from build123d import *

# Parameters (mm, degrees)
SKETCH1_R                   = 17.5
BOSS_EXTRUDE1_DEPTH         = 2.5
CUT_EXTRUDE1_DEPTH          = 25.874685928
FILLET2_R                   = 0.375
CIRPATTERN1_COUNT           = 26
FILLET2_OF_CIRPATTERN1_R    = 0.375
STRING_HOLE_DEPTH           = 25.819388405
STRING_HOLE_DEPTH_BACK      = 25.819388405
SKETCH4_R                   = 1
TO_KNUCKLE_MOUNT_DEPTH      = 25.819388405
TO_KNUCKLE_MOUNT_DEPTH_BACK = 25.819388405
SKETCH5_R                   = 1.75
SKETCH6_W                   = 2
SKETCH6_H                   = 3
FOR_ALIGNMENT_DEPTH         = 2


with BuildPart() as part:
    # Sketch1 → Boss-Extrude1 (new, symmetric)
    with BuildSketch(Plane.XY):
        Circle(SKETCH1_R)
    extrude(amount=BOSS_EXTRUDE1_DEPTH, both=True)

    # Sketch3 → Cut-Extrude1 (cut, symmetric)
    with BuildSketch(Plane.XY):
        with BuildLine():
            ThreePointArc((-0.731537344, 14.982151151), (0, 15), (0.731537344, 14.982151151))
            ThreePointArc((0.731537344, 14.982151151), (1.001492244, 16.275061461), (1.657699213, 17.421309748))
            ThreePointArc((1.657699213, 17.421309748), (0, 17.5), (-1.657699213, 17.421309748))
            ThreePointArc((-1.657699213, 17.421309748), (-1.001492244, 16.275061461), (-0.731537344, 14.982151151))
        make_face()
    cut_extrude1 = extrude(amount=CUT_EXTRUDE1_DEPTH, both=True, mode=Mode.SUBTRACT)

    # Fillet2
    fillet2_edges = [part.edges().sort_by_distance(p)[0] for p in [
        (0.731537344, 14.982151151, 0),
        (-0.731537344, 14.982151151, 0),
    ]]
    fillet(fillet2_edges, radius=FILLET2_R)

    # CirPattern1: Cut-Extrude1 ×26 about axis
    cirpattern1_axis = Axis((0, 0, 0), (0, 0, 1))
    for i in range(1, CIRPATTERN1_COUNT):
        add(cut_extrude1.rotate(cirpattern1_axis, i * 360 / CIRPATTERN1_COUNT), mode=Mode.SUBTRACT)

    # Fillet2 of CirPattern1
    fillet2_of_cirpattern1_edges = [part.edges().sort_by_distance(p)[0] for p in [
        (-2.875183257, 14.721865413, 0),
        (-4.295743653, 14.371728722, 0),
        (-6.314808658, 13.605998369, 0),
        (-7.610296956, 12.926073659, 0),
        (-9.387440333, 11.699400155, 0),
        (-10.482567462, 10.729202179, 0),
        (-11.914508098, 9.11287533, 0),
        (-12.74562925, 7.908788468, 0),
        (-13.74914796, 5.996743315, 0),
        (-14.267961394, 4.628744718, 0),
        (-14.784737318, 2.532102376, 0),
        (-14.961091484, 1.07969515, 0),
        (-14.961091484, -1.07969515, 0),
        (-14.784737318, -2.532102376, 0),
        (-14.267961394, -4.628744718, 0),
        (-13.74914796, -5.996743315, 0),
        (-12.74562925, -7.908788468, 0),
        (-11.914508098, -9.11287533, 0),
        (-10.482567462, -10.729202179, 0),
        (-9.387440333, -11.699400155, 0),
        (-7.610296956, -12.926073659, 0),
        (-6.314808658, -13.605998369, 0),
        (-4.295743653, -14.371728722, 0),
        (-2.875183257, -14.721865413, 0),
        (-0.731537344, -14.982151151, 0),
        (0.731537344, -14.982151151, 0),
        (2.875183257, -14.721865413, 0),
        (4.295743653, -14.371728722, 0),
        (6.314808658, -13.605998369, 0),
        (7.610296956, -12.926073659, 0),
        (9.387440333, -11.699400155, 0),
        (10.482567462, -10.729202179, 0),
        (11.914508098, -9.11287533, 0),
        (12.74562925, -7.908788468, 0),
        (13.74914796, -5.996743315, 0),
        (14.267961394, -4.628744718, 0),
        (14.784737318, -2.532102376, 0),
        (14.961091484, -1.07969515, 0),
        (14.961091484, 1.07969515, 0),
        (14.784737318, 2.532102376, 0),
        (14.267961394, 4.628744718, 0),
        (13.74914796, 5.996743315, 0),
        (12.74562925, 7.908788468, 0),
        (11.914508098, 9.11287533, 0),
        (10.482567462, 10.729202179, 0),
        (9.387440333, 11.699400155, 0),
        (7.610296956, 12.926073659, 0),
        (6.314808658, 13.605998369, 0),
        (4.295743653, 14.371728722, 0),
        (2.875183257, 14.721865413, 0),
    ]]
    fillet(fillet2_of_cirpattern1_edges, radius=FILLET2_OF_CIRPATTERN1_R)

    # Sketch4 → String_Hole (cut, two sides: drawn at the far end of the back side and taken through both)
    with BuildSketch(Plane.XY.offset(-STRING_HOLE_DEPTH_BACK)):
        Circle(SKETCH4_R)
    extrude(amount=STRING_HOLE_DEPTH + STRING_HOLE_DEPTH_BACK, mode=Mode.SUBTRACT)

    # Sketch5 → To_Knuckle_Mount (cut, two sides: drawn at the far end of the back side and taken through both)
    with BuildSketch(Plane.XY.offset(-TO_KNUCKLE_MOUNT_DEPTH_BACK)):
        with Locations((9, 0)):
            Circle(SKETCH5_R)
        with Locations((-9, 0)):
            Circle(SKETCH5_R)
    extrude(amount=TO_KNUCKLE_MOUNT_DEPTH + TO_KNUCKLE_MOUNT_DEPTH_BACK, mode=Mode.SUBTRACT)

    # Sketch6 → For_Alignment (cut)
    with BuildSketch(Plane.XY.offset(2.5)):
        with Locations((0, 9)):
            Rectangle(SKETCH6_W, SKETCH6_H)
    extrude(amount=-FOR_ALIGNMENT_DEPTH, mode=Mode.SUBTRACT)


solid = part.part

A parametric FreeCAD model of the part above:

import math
import FreeCAD as App
import Part
import Sketcher

V = App.Vector


def edges_at(feature, points):
    """Names of the edges that pass closest to the given points."""
    edges = feature.Shape.Edges
    near = lambda p: min(range(len(edges)), key=lambda i: edges[i].distToShape(Part.Vertex(*p))[0])
    return sorted({f"Edge{near(p) + 1}" for p in points})

doc = App.newDocument("Part")
body = doc.addObject("PartDesign::Body", "Body")

# Sketch on XY plane
sketch1 = body.newObject("Sketcher::SketchObject", "Sketch")
sketch1.AttachmentSupport = (doc.getObject("XY_Plane"), [""])
sketch1.MapMode = "FlatFace"
sketch1.addGeometry(Part.Circle(V(0, 0, 0), V(0, 0, 1), 17.5), False)
sketch1.addConstraint([
    Sketcher.Constraint("Coincident", 0, 3, -1, 1),
    Sketcher.Constraint("Diameter", 0, 35.0),
])
pad1 = body.newObject("PartDesign::Pad", "Pad")
pad1.Profile = sketch1
pad1.Length = 5
pad1.Midplane = True

# Sketch on XY plane
sketch2 = body.newObject("Sketcher::SketchObject", "Sketch001")
sketch2.AttachmentSupport = (doc.getObject("XY_Plane"), [""])
sketch2.MapMode = "FlatFace"
sketch2.addGeometry([
    Part.ArcOfCircle(Part.Circle(V(0, 0, 0), V(0, 0, 1), 15), math.radians(87.204624), math.radians(92.795376)),
    Part.ArcOfCircle(Part.Circle(V(4.94884, 14.776232, 0), V(0, 0, 1), 4.222327), math.radians(141.211288), math.radians(177.204624)),
    Part.ArcOfCircle(Part.Circle(V(0, 0, 0), V(0, 0, 1), 17.5), math.radians(84.564469), math.radians(95.435531)),
    Part.ArcOfCircle(Part.Circle(V(-4.94884, 14.776232, 0), V(0, 0, 1), 4.222327), math.radians(2.795376), math.radians(38.788712)),
], False)
sketch2.addConstraint([
    Sketcher.Constraint("Coincident", 0, 1, 1, 2),
    Sketcher.Constraint("Coincident", 1, 1, 2, 1),
    Sketcher.Constraint("Coincident", 2, 2, 3, 2),
    Sketcher.Constraint("Coincident", 3, 1, 0, 2),
    Sketcher.Constraint("Coincident", 0, 3, -1, 1),
    Sketcher.Constraint("Coincident", 2, 3, -1, 1),
    Sketcher.Constraint("Equal", 1, 3),
    Sketcher.Constraint("Symmetric", 1, 3, 3, 3, -2),
    Sketcher.Constraint("Radius", 0, 15.0),
    Sketcher.Constraint("Radius", 2, 17.5),
    Sketcher.Constraint("Radius", 1, 4.222327),
    Sketcher.Constraint("DistanceX", -1, 1, 1, 1, 1.657699),
    Sketcher.Constraint("DistanceX", -1, 1, 1, 3, 4.94884),
])
pocket1 = body.newObject("PartDesign::Pocket", "Pocket")
pocket1.Profile = sketch2
pocket1.Length = 51.749372
pocket1.Midplane = True
doc.recompute()

fillet = body.newObject("PartDesign::Fillet", "Fillet")
fillet.Base = (pocket1, edges_at(pocket1, [(0.732, 14.982, 0), (-0.732, 14.982, 0)]))
fillet.Radius = 0.375
doc.recompute()

polarpattern = body.newObject("PartDesign::PolarPattern", "PolarPattern")
polarpattern.Originals = [pocket1]
polarpattern.Axis = (doc.getObject("Z_Axis"), [""])
polarpattern.Angle = 360
polarpattern.Occurrences = 26
body.Tip = polarpattern
doc.recompute()

fillet2 = body.newObject("PartDesign::Fillet", "Fillet001")
fillet2.Base = (polarpattern, edges_at(polarpattern, [
    (-2.875, 14.722, 0),
    (-4.296, 14.372, 0),
    (-6.315, 13.606, 0),
    (-7.61, 12.926, 0),
    (-9.387, 11.699, 0),
    (-10.483, 10.729, 0),
    (-11.915, 9.113, 0),
    (-12.746, 7.909, 0),
    (-13.749, 5.997, 0),
    (-14.268, 4.629, 0),
    (-14.785, 2.532, 0),
    (-14.961, 1.08, 0),
    (-14.961, -1.08, 0),
    (-14.785, -2.532, 0),
    (-14.268, -4.629, 0),
    (-13.749, -5.997, 0),
    (-12.746, -7.909, 0),
    (-11.915, -9.113, 0),
    (-10.483, -10.729, 0),
    (-9.387, -11.699, 0),
    (-7.61, -12.926, 0),
    (-6.315, -13.606, 0),
    (-4.296, -14.372, 0),
    (-2.875, -14.722, 0),
    (-0.732, -14.982, 0),
    (0.732, -14.982, 0),
    (2.875, -14.722, 0),
    (4.296, -14.372, 0),
    (6.315, -13.606, 0),
    (7.61, -12.926, 0),
    (9.387, -11.699, 0),
    (10.483, -10.729, 0),
    (11.915, -9.113, 0),
    (12.746, -7.909, 0),
    (13.749, -5.997, 0),
    (14.268, -4.629, 0),
    (14.785, -2.532, 0),
    (14.961, -1.08, 0),
    (14.961, 1.08, 0),
    (14.785, 2.532, 0),
    (14.268, 4.629, 0),
    (13.749, 5.997, 0),
    (12.746, 7.909, 0),
    (11.915, 9.113, 0),
    (10.483, 10.729, 0),
    (9.387, 11.699, 0),
    (7.61, 12.926, 0),
    (6.315, 13.606, 0),
    (4.296, 14.372, 0),
    (2.875, 14.722, 0),
]))
fillet2.Radius = 0.375

# Sketch on XY plane
sketch3 = body.newObject("Sketcher::SketchObject", "Sketch002")
sketch3.AttachmentSupport = (doc.getObject("XY_Plane"), [""])
sketch3.MapMode = "FlatFace"
sketch3.addGeometry(Part.Circle(V(0, 0, 0), V(0, 0, 1), 1), False)
sketch3.addConstraint([
    Sketcher.Constraint("Coincident", 0, 3, -1, 1),
    Sketcher.Constraint("Diameter", 0, 2.0),
])
pocket2 = body.newObject("PartDesign::Pocket", "Pocket001")
pocket2.Profile = sketch3
pocket2.Type = "ThroughAll"
pocket2.Midplane = True

# Sketch on XY plane
sketch4 = body.newObject("Sketcher::SketchObject", "Sketch003")
sketch4.AttachmentSupport = (doc.getObject("XY_Plane"), [""])
sketch4.MapMode = "FlatFace"
sketch4.addGeometry([
    Part.Circle(V(9, 0, 0), V(0, 0, 1), 1.75),
    Part.Circle(V(-9, 0, 0), V(0, 0, 1), 1.75),
], False)
sketch4.addConstraint([
    Sketcher.Constraint("Equal", 0, 1),
    Sketcher.Constraint("Symmetric", 0, 3, 1, 3, -1, 1),
    Sketcher.Constraint("PointOnObject", 0, 3, -1),
    Sketcher.Constraint("Diameter", 0, 3.5),
    Sketcher.Constraint("DistanceX", -1, 1, 0, 3, 9.0),
])
pocket3 = body.newObject("PartDesign::Pocket", "Pocket002")
pocket3.Profile = sketch4
pocket3.Type = "ThroughAll"
pocket3.Midplane = True

# Sketch on XY plane
sketch5 = body.newObject("Sketcher::SketchObject", "Sketch004")
sketch5.AttachmentSupport = (doc.getObject("XY_Plane"), [""])
sketch5.MapMode = "FlatFace"
sketch5.AttachmentOffset = App.Placement(V(0, 0, 2.5), App.Rotation())
sketch5.addGeometry([
    Part.LineSegment(V(-1, 10.5, 0), V(-1, 7.5, 0)),
    Part.LineSegment(V(-1, 7.5, 0), V(1, 7.5, 0)),
    Part.LineSegment(V(1, 7.5, 0), V(1, 10.5, 0)),
    Part.LineSegment(V(1, 10.5, 0), V(-1, 10.5, 0)),
], False)
sketch5.addConstraint([
    Sketcher.Constraint("Coincident", 0, 2, 1, 1),
    Sketcher.Constraint("Coincident", 1, 2, 2, 1),
    Sketcher.Constraint("Coincident", 2, 2, 3, 1),
    Sketcher.Constraint("Coincident", 3, 2, 0, 1),
    Sketcher.Constraint("Vertical", 0),
    Sketcher.Constraint("Horizontal", 1),
    Sketcher.Constraint("Vertical", 2),
    Sketcher.Constraint("Horizontal", 3),
    Sketcher.Constraint("DistanceX", 1, 1, 1, 2, 2.0),
    Sketcher.Constraint("DistanceY", 0, 2, 0, 1, 3.0),
    Sketcher.Constraint("DistanceX", 0, 2, -1, 1, 1.0),
    Sketcher.Constraint("DistanceY", -1, 1, 0, 2, 7.5),
])
pocket4 = body.newObject("PartDesign::Pocket", "Pocket003")
pocket4.Profile = sketch5
pocket4.Length = 2

doc.recompute()
